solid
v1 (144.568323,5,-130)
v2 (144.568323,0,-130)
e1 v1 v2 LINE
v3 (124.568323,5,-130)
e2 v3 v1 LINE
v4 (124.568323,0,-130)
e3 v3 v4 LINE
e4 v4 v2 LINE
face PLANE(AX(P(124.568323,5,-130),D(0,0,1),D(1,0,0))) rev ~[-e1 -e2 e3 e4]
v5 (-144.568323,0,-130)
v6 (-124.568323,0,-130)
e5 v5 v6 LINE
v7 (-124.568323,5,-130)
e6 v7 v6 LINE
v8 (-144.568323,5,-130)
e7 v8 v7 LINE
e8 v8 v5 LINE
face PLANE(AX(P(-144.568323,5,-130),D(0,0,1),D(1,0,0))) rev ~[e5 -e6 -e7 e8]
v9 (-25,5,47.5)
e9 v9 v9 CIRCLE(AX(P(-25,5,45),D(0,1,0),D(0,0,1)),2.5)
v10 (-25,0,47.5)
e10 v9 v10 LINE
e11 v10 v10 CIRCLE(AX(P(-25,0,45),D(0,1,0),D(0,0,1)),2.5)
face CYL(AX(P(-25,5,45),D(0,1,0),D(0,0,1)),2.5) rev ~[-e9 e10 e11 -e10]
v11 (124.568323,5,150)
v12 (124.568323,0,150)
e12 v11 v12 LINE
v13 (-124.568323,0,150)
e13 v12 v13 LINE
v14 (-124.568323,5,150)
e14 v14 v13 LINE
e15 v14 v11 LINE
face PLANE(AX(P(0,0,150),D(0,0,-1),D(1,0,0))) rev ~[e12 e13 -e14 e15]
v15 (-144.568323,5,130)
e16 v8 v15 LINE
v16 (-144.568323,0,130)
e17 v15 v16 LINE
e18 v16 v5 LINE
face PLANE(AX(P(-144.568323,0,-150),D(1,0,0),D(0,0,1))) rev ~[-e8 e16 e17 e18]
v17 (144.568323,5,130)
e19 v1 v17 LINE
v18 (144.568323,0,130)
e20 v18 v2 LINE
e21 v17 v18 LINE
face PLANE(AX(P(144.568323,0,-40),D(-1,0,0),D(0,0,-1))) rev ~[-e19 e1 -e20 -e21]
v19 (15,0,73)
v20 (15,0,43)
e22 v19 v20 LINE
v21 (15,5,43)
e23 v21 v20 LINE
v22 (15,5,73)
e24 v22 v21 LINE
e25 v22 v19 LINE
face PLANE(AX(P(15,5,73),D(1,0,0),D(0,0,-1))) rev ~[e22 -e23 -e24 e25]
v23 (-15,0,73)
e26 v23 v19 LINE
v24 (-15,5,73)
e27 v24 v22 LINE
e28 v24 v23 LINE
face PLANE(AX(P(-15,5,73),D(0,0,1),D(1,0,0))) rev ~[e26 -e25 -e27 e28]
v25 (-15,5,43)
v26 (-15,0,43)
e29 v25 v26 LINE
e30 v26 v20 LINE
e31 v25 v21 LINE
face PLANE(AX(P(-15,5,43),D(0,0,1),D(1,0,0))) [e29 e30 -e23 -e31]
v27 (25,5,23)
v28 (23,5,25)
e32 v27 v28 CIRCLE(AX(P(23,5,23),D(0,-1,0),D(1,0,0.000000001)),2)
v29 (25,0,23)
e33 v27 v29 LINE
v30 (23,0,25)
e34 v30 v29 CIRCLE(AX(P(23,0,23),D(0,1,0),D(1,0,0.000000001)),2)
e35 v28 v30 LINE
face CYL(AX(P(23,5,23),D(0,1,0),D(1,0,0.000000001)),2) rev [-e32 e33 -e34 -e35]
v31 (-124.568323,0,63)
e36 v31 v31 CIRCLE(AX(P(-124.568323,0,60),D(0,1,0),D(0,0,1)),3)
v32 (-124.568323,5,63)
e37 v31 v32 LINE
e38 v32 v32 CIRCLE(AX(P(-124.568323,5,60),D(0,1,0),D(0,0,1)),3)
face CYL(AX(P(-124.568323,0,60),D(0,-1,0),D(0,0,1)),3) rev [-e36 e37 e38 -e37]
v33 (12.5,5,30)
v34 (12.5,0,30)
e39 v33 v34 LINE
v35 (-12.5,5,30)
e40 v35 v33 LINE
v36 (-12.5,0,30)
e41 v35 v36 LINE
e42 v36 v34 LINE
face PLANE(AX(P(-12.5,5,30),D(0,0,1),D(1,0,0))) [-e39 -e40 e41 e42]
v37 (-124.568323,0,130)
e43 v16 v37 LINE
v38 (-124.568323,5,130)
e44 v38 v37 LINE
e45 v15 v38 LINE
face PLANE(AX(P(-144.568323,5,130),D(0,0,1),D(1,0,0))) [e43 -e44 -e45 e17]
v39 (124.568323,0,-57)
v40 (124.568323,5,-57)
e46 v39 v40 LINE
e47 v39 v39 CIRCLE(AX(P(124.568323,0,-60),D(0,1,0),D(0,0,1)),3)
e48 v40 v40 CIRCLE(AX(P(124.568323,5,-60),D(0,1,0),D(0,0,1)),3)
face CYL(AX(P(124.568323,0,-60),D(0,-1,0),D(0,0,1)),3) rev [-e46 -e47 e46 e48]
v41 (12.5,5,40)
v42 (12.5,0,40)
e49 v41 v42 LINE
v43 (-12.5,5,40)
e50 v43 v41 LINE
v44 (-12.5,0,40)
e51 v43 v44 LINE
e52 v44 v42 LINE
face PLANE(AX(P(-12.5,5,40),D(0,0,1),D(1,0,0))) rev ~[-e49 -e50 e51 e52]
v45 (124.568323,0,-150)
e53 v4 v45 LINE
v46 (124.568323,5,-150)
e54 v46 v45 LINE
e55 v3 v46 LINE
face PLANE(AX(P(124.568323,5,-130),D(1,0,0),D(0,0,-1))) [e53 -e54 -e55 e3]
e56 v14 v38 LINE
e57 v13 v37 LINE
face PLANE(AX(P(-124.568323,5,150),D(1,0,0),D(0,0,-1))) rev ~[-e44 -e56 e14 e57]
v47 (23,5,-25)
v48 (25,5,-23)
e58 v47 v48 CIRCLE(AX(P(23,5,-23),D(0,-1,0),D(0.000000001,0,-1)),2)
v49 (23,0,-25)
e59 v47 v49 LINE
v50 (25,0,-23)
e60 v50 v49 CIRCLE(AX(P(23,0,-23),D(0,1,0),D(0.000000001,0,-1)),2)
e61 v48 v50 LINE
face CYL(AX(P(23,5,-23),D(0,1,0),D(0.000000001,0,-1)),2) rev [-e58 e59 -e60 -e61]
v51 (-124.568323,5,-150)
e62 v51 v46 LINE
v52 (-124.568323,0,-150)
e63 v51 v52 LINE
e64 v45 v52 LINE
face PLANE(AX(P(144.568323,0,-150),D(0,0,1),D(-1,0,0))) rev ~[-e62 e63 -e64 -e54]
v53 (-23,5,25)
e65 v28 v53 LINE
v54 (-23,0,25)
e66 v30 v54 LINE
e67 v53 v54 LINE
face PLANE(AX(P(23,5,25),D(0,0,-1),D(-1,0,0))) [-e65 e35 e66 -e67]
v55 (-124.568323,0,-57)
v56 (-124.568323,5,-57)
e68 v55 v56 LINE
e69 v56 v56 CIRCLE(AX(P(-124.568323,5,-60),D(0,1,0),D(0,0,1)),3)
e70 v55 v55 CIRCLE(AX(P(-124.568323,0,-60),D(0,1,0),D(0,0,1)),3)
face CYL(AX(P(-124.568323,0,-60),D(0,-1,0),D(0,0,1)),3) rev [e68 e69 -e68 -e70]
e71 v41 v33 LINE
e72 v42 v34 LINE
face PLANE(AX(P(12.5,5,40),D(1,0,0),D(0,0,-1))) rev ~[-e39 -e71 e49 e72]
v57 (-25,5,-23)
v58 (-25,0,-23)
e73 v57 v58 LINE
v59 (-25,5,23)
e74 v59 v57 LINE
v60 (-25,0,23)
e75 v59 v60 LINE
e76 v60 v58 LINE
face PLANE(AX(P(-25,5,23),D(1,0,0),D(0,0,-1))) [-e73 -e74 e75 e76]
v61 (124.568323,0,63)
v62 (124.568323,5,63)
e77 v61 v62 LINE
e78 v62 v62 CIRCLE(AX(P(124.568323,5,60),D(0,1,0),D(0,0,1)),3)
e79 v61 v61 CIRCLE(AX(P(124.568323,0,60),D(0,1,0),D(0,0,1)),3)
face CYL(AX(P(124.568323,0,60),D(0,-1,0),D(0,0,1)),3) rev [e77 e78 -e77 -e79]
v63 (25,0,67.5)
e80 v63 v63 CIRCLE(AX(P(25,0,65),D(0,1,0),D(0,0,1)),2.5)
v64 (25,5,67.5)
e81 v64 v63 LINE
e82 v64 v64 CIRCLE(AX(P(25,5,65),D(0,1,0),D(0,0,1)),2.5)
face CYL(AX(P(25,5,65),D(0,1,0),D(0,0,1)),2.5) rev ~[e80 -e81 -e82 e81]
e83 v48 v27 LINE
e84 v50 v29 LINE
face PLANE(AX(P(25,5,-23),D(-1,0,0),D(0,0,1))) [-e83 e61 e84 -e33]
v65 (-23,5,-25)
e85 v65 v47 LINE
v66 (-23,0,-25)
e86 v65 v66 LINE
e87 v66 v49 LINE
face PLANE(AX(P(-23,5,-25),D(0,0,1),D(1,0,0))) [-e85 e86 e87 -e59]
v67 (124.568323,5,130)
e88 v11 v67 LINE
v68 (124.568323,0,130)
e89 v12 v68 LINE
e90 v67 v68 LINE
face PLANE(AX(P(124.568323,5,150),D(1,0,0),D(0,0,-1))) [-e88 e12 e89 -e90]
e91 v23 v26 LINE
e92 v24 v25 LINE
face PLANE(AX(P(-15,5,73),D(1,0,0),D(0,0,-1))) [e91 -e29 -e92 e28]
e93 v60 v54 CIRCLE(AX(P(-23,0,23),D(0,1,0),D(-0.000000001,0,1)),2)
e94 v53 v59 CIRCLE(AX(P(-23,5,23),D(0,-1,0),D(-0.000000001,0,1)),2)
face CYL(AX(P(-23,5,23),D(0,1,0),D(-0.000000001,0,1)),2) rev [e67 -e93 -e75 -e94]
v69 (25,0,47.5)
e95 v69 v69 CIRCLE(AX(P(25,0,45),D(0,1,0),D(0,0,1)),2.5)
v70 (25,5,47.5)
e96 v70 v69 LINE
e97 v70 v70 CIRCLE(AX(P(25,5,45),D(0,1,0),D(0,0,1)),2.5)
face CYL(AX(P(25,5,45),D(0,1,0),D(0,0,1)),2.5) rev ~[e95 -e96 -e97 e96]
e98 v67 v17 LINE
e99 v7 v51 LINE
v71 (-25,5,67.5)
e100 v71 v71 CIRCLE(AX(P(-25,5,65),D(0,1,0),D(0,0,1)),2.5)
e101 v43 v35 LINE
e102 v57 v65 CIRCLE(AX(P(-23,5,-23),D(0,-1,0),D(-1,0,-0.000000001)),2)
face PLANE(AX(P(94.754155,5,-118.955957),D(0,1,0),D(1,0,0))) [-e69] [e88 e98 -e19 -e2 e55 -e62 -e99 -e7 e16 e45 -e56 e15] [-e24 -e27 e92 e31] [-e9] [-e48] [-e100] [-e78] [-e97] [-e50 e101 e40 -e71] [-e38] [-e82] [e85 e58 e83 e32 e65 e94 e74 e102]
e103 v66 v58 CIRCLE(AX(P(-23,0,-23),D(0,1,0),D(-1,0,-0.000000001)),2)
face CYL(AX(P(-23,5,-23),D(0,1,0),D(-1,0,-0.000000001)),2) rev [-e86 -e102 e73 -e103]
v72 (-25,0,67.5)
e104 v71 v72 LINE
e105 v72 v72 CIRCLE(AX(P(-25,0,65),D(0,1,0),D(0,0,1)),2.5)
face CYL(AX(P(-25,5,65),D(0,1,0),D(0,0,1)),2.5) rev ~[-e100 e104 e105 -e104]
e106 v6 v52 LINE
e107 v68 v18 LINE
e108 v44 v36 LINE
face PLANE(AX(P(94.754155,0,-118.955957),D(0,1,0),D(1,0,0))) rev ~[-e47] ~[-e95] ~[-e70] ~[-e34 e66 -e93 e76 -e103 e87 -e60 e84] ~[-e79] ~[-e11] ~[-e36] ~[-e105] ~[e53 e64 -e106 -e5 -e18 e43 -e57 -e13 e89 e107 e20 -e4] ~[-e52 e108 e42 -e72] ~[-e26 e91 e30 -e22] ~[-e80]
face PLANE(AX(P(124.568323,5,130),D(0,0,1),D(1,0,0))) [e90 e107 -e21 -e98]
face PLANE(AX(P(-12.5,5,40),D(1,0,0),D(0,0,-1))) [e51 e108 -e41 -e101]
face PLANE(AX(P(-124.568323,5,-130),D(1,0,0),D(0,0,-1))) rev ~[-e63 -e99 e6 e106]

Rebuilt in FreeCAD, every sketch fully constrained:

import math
import FreeCAD as App
import Part
import Sketcher
from FreeCAD import Vector
Q = App.Units.Quantity


def add_polygon(sketch, points):
    """Adds a closed chain of lines whose ends are joined by coincident constraints."""
    first, n = sketch.GeometryCount, len(points)
    for a, b in zip(points, points[1:] + points[:1]):
        sketch.addGeometry(Part.LineSegment(App.Vector(*a, 0), App.Vector(*b, 0)), False)
    for i in range(n):
        sketch.addConstraint(Sketcher.Constraint("Coincident", first + i, 2, first + (i + 1) % n, 1))

doc = App.newDocument("Part")
params = doc.addObject("Spreadsheet::Sheet", "Params")
for row, (alias, value) in enumerate([
    ("sketch1_diameter", "6 mm"),
    ("sketch1_height", "300 mm"),
    ("pad1_length", "5 mm"),
    ("sketch2_diameter", "5 mm"),
    ("sketch2_radius", "2 mm"),
    ("sketch2_width", "46 mm"),
    ("sketch2_width2", "30 mm"),
    ("sketch2_width3", "25 mm"),
    ("sketch3_width", "20 mm"),
    ("pocket2_length", "10 mm"),
], start=1):
    params.set(f"A{row}", alias)
    params.set(f"B{row}", "=" + value)
    params.setAlias(f"B{row}", alias)

body = doc.addObject("PartDesign::Body", "Body")

# Sketch on XZ plane
sketch1 = body.newObject("Sketcher::SketchObject", "Sketch")
sketch1.AttachmentSupport = (doc.getObject("XZ_Plane"), [""])
sketch1.MapMode = "FlatFace"
add_polygon(sketch1, [(-144.6, 150), (144.6, 150), (144.6, -150), (-144.6, -150)])  # lines 0-3
sketch1.addGeometry(Part.Circle(Vector(124.6, -60, 0), Vector(0, 0, 1), 3), False)  # 4
sketch1.addGeometry(Part.Circle(Vector(-124.6, 60, 0), Vector(0, 0, 1), 3), False)  # 5
sketch1.addGeometry(Part.Circle(Vector(124.6, 60, 0), Vector(0, 0, 1), 3), False)  # 6
sketch1.addGeometry(Part.Circle(Vector(-124.6, -60, 0), Vector(0, 0, 1), 3), False)  # 7
sketch1.addConstraint(Sketcher.Constraint("Horizontal", 0))
sketch1.addConstraint(Sketcher.Constraint("Vertical", 1))
sketch1.addConstraint(Sketcher.Constraint("Horizontal", 2))
sketch1.addConstraint(Sketcher.Constraint("Vertical", 3))
sketch1.addConstraint(Sketcher.Constraint("Equal", 4, 5))
sketch1.addConstraint(Sketcher.Constraint("Equal", 5, 6))
sketch1.addConstraint(Sketcher.Constraint("Equal", 6, 7))
sketch1.addConstraint(Sketcher.Constraint("Symmetric", 4, 3, 5, 3, -1, 1))
sketch1.addConstraint(Sketcher.Constraint("Symmetric", 6, 3, 7, 3, -1, 1))
sketch1.addConstraint(Sketcher.Constraint("Symmetric", 0, 2, 2, 2, -1, 1))
sketch1.addConstraint(Sketcher.Constraint("Symmetric", 5, 3, 6, 3, -2))
sketch1.addConstraint(Sketcher.Constraint("Diameter", 4, Q("6 mm")))
sketch1.addConstraint(Sketcher.Constraint("DistanceY", 1, 2, 1, 1, Q("300 mm")))
sketch1.addConstraint(Sketcher.Constraint("DistanceY", 4, 3, -1, 1, Q("60 mm")))
sketch1.addConstraint(Sketcher.Constraint("DistanceX", 6, 3, 0, 2, Q("20 mm")))
sketch1.addConstraint(Sketcher.Constraint("DistanceX", 0, 1, 0, 2, Q("289.136646 mm")))
sketch1.setExpression("Constraints[15]", "Params.sketch1_diameter")
sketch1.setExpression("Constraints[16]", "Params.sketch1_height")
pad1 = body.newObject("PartDesign::Pad", "Pad")
pad1.Profile = sketch1
pad1.setExpression("Length", "Params.pad1_length")
pad1.Reversed = True

# Sketch on XZ plane
sketch2 = body.newObject("Sketcher::SketchObject", "Sketch001")
sketch2.AttachmentSupport = (doc.getObject("XZ_Plane"), [""])
sketch2.MapMode = "FlatFace"
sketch2.AttachmentOffset = App.Placement(Vector(0, 0, -5), App.Rotation())
sketch2.addGeometry(Part.Circle(Vector(25, 45, 0), Vector(0, 0, 1), 2.5), False)  # 0
sketch2.addGeometry(Part.Circle(Vector(25, 65, 0), Vector(0, 0, 1), 2.5), False)  # 1
sketch2.addGeometry(Part.Circle(Vector(-25, 45, 0), Vector(0, 0, 1), 2.5), False)  # 2
sketch2.addGeometry(Part.Circle(Vector(-25, 65, 0), Vector(0, 0, 1), 2.5), False)  # 3
sketch2.addGeometry(Part.LineSegment(Vector(-23, 25, 0), Vector(23, 25, 0)), False)  # 4
sketch2.addGeometry(Part.ArcOfCircle(Part.Circle(Vector(23, 23, 0), Vector(0, 0, 1), 2), math.radians(0), math.radians(90)), False)  # 5
sketch2.addGeometry(Part.LineSegment(Vector(25, 23, 0), Vector(25, -23, 0)), False)  # 6
sketch2.addGeometry(Part.ArcOfCircle(Part.Circle(Vector(23, -23, 0), Vector(0, 0, 1), 2), math.radians(-90), math.radians(0)), False)  # 7
sketch2.addGeometry(Part.LineSegment(Vector(23, -25, 0), Vector(-23, -25, 0)), False)  # 8
sketch2.addGeometry(Part.ArcOfCircle(Part.Circle(Vector(-23, -23, 0), Vector(0, 0, 1), 2), math.radians(-180), math.radians(-90)), False)  # 9
sketch2.addGeometry(Part.LineSegment(Vector(-25, -23, 0), Vector(-25, 23, 0)), False)  # 10
sketch2.addGeometry(Part.ArcOfCircle(Part.Circle(Vector(-23, 23, 0), Vector(0, 0, 1), 2), math.radians(90), math.radians(180)), False)  # 11
add_polygon(sketch2, [(-15, 43), (-15, 73), (15, 73), (15, 43)])  # lines 12-15
add_polygon(sketch2, [(-12.5, 30), (-12.5, 40), (12.5, 40), (12.5, 30)])  # lines 16-19
sketch2.addConstraint(Sketcher.Constraint("Tangent", 4, 2, 5, 2))
sketch2.addConstraint(Sketcher.Constraint("Tangent", 5, 1, 6, 1))
sketch2.addConstraint(Sketcher.Constraint("Tangent", 6, 2, 7, 2))
sketch2.addConstraint(Sketcher.Constraint("Tangent", 7, 1, 8, 1))
sketch2.addConstraint(Sketcher.Constraint("Tangent", 8, 2, 9, 2))
sketch2.addConstraint(Sketcher.Constraint("Tangent", 9, 1, 10, 1))
sketch2.addConstraint(Sketcher.Constraint("Tangent", 10, 2, 11, 2))
sketch2.addConstraint(Sketcher.Constraint("Tangent", 11, 1, 4, 1))
sketch2.addConstraint(Sketcher.Constraint("Horizontal", 4))
sketch2.addConstraint(Sketcher.Constraint("Vertical", 6))
sketch2.addConstraint(Sketcher.Constraint("Horizontal", 8))
sketch2.addConstraint(Sketcher.Constraint("Vertical", 10))
sketch2.addConstraint(Sketcher.Constraint("Vertical", 12))
sketch2.addConstraint(Sketcher.Constraint("Horizontal", 13))
sketch2.addConstraint(Sketcher.Constraint("Vertical", 14))
sketch2.addConstraint(Sketcher.Constraint("Horizontal", 15))
sketch2.addConstraint(Sketcher.Constraint("Vertical", 16))
sketch2.addConstraint(Sketcher.Constraint("Horizontal", 17))
sketch2.addConstraint(Sketcher.Constraint("Vertical", 18))
sketch2.addConstraint(Sketcher.Constraint("Horizontal", 19))
sketch2.addConstraint(Sketcher.Constraint("Equal", 0, 1))
sketch2.addConstraint(Sketcher.Constraint("Equal", 1, 2))
sketch2.addConstraint(Sketcher.Constraint("Equal", 2, 3))
sketch2.addConstraint(Sketcher.Constraint("Equal", 5, 7))
sketch2.addConstraint(Sketcher.Constraint("Equal", 7, 9))
sketch2.addConstraint(Sketcher.Constraint("Equal", 9, 11))
sketch2.addConstraint(Sketcher.Constraint("Symmetric", 5, 3, 9, 3, -1, 1))
sketch2.addConstraint(Sketcher.Constraint("Symmetric", 0, 3, 2, 3, -2))
sketch2.addConstraint(Sketcher.Constraint("Symmetric", 1, 3, 3, 3, -2))
sketch2.addConstraint(Sketcher.Constraint("Vertical", 0, 3, 1, 3))
sketch2.addConstraint(Sketcher.Constraint("Vertical", 1, 3, 5, 1))
sketch2.addConstraint(Sketcher.Constraint("Equal", 8, 6))
sketch2.addConstraint(Sketcher.Constraint("Equal", 15, 12))
sketch2.addConstraint(Sketcher.Constraint("Diameter", 0, Q("5 mm")))
sketch2.addConstraint(Sketcher.Constraint("Radius", 5, Q("2 mm")))
sketch2.addConstraint(Sketcher.Constraint("DistanceX", 4, 1, 4, 2, Q("46 mm")))
sketch2.addConstraint(Sketcher.Constraint("DistanceX", 13, 1, 13, 2, Q("30 mm")))
sketch2.addConstraint(Sketcher.Constraint("DistanceX", 17, 1, 17, 2, Q("25 mm")))
sketch2.addConstraint(Sketcher.Constraint("DistanceY", 16, 1, 16, 2, Q("10 mm")))
sketch2.addConstraint(Sketcher.Constraint("DistanceY", -1, 1, 0, 3, Q("45 mm")))
sketch2.addConstraint(Sketcher.Constraint("DistanceY", -1, 1, 1, 3, Q("65 mm")))
sketch2.addConstraint(Sketcher.Constraint("DistanceX", 12, 2, -1, 1, Q("15 mm")))
sketch2.addConstraint(Sketcher.Constraint("DistanceY", -1, 1, 12, 2, Q("73 mm")))
sketch2.addConstraint(Sketcher.Constraint("DistanceY", -1, 1, 16, 2, Q("40 mm")))
sketch2.addConstraint(Sketcher.Constraint("DistanceX", 16, 2, -1, 1, Q("12.5 mm")))
sketch2.setExpression("Constraints[41]", "Params.sketch2_diameter")
sketch2.setExpression("Constraints[42]", "Params.sketch2_radius")
sketch2.setExpression("Constraints[43]", "Params.sketch2_width")
sketch2.setExpression("Constraints[44]", "Params.sketch2_width2")
sketch2.setExpression("Constraints[45]", "Params.sketch2_width3")
pocket1 = body.newObject("PartDesign::Pocket", "Pocket")
pocket1.Profile = sketch2
pocket1.Type = "ThroughAll"
pocket1.Reversed = True

# Sketch on XZ plane
sketch3 = body.newObject("Sketcher::SketchObject", "Sketch002")
sketch3.AttachmentSupport = (doc.getObject("XZ_Plane"), [""])
sketch3.MapMode = "FlatFace"
sketch3.AttachmentOffset = App.Placement(Vector(0, 0, -5), App.Rotation())
add_polygon(sketch3, [(-145, -150), (-145, -130), (-125, -130), (-125, -150)])  # lines 0-3
add_polygon(sketch3, [(125, -150), (125, -130), (145, -130), (145, -150)])  # lines 4-7
add_polygon(sketch3, [(125, 130), (125, 150), (145, 150), (145, 130)])  # lines 8-11
add_polygon(sketch3, [(-145, 130), (-145, 150), (-125, 150), (-125, 130)])  # lines 12-15
sketch3.addConstraint(Sketcher.Constraint("Vertical", 0))
sketch3.addConstraint(Sketcher.Constraint("Horizontal", 1))
sketch3.addConstraint(Sketcher.Constraint("Vertical", 2))
sketch3.addConstraint(Sketcher.Constraint("Horizontal", 3))
sketch3.addConstraint(Sketcher.Constraint("Vertical", 4))
sketch3.addConstraint(Sketcher.Constraint("Horizontal", 5))
sketch3.addConstraint(Sketcher.Constraint("Vertical", 6))
sketch3.addConstraint(Sketcher.Constraint("Horizontal", 7))
sketch3.addConstraint(Sketcher.Constraint("Vertical", 8))
sketch3.addConstraint(Sketcher.Constraint("Horizontal", 9))
sketch3.addConstraint(Sketcher.Constraint("Vertical", 10))
sketch3.addConstraint(Sketcher.Constraint("Horizontal", 11))
sketch3.addConstraint(Sketcher.Constraint("Vertical", 12))
sketch3.addConstraint(Sketcher.Constraint("Horizontal", 13))
sketch3.addConstraint(Sketcher.Constraint("Vertical", 14))
sketch3.addConstraint(Sketcher.Constraint("Horizontal", 15))
sketch3.addConstraint(Sketcher.Constraint("Symmetric", 2, 2, 8, 2, -1, 1))
sketch3.addConstraint(Sketcher.Constraint("Symmetric", 0, 2, 10, 2, -1, 1))
sketch3.addConstraint(Sketcher.Constraint("Symmetric", 6, 2, 12, 2, -1, 1))
sketch3.addConstraint(Sketcher.Constraint("Symmetric", 4, 2, 14, 2, -1, 1))
sketch3.addConstraint(Sketcher.Constraint("Symmetric", 1, 2, 4, 2, -2))
sketch3.addConstraint(Sketcher.Constraint("Symmetric", 3, 2, 6, 2, -2))
sketch3.addConstraint(Sketcher.Constraint("Equal", 15, 0))
sketch3.addConstraint(Sketcher.Constraint("DistanceX", 1, 1, 1, 2, Q("20 mm")))
sketch3.addConstraint(Sketcher.Constraint("DistanceY", 0, 2, -1, 1, Q("130 mm")))
sketch3.addConstraint(Sketcher.Constraint("DistanceX", 0, 2, -1, 1, Q("144.568323 mm")))
sketch3.setExpression("Constraints[39]", "Params.sketch3_width")
pocket2 = body.newObject("PartDesign::Pocket", "Pocket001")
pocket2.Profile = sketch3
pocket2.setExpression("Length", "Params.pocket2_length")
pocket2.Reversed = True

doc.recompute()
